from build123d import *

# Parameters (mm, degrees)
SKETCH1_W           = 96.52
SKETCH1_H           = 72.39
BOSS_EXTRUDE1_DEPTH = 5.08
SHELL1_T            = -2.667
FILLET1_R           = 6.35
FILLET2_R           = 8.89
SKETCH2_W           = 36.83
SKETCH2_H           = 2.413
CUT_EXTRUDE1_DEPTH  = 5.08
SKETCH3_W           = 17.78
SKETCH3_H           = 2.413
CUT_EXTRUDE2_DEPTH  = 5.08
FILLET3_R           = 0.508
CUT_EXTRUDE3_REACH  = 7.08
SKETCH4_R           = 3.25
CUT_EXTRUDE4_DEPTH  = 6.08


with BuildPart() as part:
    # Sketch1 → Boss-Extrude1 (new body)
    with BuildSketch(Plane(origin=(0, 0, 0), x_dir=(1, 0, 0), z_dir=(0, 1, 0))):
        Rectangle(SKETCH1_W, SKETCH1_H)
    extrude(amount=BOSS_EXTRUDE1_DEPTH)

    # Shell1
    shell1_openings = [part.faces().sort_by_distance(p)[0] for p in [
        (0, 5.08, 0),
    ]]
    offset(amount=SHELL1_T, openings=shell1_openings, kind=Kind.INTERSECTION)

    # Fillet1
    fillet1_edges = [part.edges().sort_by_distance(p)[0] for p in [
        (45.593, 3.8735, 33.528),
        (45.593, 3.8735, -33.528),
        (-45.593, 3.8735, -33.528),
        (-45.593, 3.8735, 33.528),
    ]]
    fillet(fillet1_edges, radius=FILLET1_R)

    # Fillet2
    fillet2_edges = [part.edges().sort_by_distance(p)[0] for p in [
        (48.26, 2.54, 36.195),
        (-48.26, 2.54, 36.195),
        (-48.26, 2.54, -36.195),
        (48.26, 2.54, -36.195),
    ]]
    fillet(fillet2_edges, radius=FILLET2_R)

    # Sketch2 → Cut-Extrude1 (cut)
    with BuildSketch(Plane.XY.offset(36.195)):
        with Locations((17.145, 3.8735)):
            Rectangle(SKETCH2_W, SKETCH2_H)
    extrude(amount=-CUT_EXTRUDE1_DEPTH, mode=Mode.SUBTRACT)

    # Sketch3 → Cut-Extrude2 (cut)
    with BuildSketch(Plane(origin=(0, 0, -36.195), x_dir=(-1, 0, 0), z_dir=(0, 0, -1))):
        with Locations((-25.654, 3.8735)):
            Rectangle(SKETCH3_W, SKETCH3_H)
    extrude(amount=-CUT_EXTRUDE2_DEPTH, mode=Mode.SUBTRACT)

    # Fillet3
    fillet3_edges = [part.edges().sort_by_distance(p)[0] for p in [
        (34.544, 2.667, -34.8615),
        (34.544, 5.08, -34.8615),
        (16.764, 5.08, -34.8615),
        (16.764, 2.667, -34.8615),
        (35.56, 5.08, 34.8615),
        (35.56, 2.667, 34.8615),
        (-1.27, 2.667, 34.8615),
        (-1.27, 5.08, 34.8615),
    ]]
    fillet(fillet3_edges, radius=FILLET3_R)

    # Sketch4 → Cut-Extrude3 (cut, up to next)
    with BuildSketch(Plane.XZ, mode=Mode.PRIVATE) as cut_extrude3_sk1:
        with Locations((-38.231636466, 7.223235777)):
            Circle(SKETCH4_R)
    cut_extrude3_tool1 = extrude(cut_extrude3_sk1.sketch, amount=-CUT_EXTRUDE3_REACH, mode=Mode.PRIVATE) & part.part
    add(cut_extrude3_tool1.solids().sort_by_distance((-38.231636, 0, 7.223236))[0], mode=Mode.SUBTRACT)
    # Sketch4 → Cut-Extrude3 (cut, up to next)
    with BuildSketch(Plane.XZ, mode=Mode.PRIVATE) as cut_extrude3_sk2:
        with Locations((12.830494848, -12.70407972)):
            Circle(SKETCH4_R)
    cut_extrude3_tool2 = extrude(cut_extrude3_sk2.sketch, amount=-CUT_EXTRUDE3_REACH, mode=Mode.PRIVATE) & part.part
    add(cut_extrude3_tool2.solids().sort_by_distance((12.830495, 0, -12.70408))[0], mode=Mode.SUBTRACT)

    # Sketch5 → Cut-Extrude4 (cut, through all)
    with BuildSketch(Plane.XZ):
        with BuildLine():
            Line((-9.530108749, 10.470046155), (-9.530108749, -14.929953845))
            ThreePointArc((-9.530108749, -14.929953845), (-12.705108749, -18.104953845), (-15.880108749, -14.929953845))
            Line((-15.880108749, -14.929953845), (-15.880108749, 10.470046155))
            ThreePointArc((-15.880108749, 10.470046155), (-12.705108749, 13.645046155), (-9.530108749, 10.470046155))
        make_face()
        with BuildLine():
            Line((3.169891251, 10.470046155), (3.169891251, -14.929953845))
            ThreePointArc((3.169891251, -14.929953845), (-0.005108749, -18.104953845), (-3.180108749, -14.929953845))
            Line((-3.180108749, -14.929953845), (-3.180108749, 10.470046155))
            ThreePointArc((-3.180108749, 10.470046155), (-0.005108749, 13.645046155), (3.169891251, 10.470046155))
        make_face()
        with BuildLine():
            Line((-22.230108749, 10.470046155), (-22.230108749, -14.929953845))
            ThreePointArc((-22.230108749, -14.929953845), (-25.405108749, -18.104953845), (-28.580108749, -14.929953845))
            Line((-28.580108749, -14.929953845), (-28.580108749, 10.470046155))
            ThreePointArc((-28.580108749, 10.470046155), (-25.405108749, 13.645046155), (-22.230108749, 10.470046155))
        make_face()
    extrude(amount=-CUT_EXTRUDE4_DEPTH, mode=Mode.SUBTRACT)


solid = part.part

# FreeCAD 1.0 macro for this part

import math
import FreeCAD as App
import Part
import Sketcher

V = App.Vector
Q = App.Units.Quantity


def edges_at(feature, points):
    """Names of the edges that pass closest to the given points."""
    edges = feature.Shape.Edges
    near = lambda p: min(range(len(edges)), key=lambda i: edges[i].distToShape(Part.Vertex(*p))[0])
    return sorted({f"Edge{near(p) + 1}" for p in points})


def faces_at(feature, points):
    """Names of the faces that lie closest to the given points."""
    faces = feature.Shape.Faces
    near = lambda p: min(range(len(faces)), key=lambda i: faces[i].distToShape(Part.Vertex(*p))[0])
    return sorted({f"Face{near(p) + 1}" for p in points})


def add_polygon(sketch, points):
    """Adds a closed chain of lines whose ends are joined by coincident constraints."""
    first, n = sketch.GeometryCount, len(points)
    for a, b in zip(points, points[1:] + points[:1]):
        sketch.addGeometry(Part.LineSegment(App.Vector(*a, 0), App.Vector(*b, 0)), False)
    for i in range(n):
        sketch.addConstraint(Sketcher.Constraint("Coincident", first + i, 2, first + (i + 1) % n, 1))

doc = App.newDocument("Part")
body = doc.addObject("PartDesign::Body", "Body")

# Sketch on XZ plane
sketch1 = doc.addObject("Sketcher::SketchObject", "Sketch")
body.addObject(sketch1)
sketch1.AttachmentSupport = (doc.XZ_Plane, [""])
sketch1.MapMode = "FlatFace"
add_polygon(sketch1, [(-48, -36), (-48, 36), (48, 36), (48, -36)])  # lines 0-3
sketch1.addConstraint(Sketcher.Constraint("Vertical", 0))
sketch1.addConstraint(Sketcher.Constraint("Horizontal", 1))
sketch1.addConstraint(Sketcher.Constraint("Vertical", 2))
sketch1.addConstraint(Sketcher.Constraint("Horizontal", 3))
sketch1.addConstraint(Sketcher.Constraint("Symmetric", 0, 2, 2, 2, -1, 1))
sketch1.addConstraint(Sketcher.Constraint("DistanceX", 1, 1, 1, 2, Q("3.8 in")))
sketch1.addConstraint(Sketcher.Constraint("DistanceY", 0, 1, 0, 2, Q("2.85 in")))
pad1 = doc.addObject("PartDesign::Pad", "Pad")
body.addObject(pad1)
pad1.Profile = sketch1
pad1.Length = Q("0.2 in")
pad1.Reversed = True
doc.recompute()

thickness = doc.addObject("PartDesign::Thickness", "Thickness")
body.addObject(thickness)
thickness.Base = (pad1, faces_at(pad1, [(0, 5.08, 0)]))
thickness.Value = Q("0.105 in")
thickness.Reversed = True
thickness.Join = "Intersection"
doc.recompute()

fillet = doc.addObject("PartDesign::Fillet", "Fillet")
body.addObject(fillet)
fillet.Base = (thickness, edges_at(thickness, [
    (45.593, 3.873, 33.528),
    (45.593, 3.873, -33.528),
    (-45.593, 3.873, -33.528),
    (-45.593, 3.873, 33.528),
]))
fillet.Radius = Q("0.25 in")
doc.recompute()

fillet2 = doc.addObject("PartDesign::Fillet", "Fillet001")
body.addObject(fillet2)
fillet2.Base = (fillet, edges_at(fillet, [
    (48.26, 2.54, 36.195),
    (-48.26, 2.54, 36.195),
    (-48.26, 2.54, -36.195),
    (48.26, 2.54, -36.195),
]))
fillet2.Radius = Q("0.35 in")

# Sketch on XY plane
sketch2 = doc.addObject("Sketcher::SketchObject", "Sketch001")
body.addObject(sketch2)
sketch2.AttachmentSupport = (doc.XY_Plane, [""])
sketch2.MapMode = "FlatFace"
sketch2.AttachmentOffset = App.Placement(V(0, 0, 1.425 * 25.4), App.Rotation())
add_polygon(sketch2, [(-1.3, 5.1), (-1.3, 2.7), (35.6, 2.7), (35.6, 5.1)])  # lines 0-3
sketch2.addConstraint(Sketcher.Constraint("Vertical", 0))
sketch2.addConstraint(Sketcher.Constraint("Horizontal", 1))
sketch2.addConstraint(Sketcher.Constraint("Vertical", 2))
sketch2.addConstraint(Sketcher.Constraint("Horizontal", 3))
sketch2.addConstraint(Sketcher.Constraint("DistanceX", 1, 1, 1, 2, Q("1.45 in")))
sketch2.addConstraint(Sketcher.Constraint("DistanceX", -1, 1, 1, 2, Q("1.4 in")))
sketch2.addConstraint(Sketcher.Constraint("DistanceY", -1, 1, 2, 2, Q("0.2 in")))
sketch2.addConstraint(Sketcher.Constraint("DistanceY", 0, 2, 0, 1, Q("0.095 in")))
pocket1 = doc.addObject("PartDesign::Pocket", "Pocket")
body.addObject(pocket1)
pocket1.Profile = sketch2
pocket1.Length = Q("0.2 in")

# Sketch on XY plane
sketch3 = doc.addObject("Sketcher::SketchObject", "Sketch002")
body.addObject(sketch3)
sketch3.AttachmentSupport = (doc.XY_Plane, [""])
sketch3.MapMode = "FlatFace"
sketch3.AttachmentOffset = App.Placement(V(0, 0, -1.425 * 25.4), App.Rotation())
add_polygon(sketch3, [(34.5, 5.1), (34.5, 2.7), (16.8, 2.7), (16.8, 5.1)])  # lines 0-3
sketch3.addConstraint(Sketcher.Constraint("Vertical", 0))
sketch3.addConstraint(Sketcher.Constraint("Horizontal", 1))
sketch3.addConstraint(Sketcher.Constraint("Vertical", 2))
sketch3.addConstraint(Sketcher.Constraint("Horizontal", 3))
sketch3.addConstraint(Sketcher.Constraint("DistanceX", 1, 2, 1, 1, Q("0.7 in")))
sketch3.addConstraint(Sketcher.Constraint("DistanceY", -1, 1, 2, 2, Q("0.2 in")))
sketch3.addConstraint(Sketcher.Constraint("DistanceY", 0, 2, 0, 1, Q("0.095 in")))
sketch3.addConstraint(Sketcher.Constraint("DistanceX", -1, 1, 0, 2, Q("1.36 in")))
pocket2 = doc.addObject("PartDesign::Pocket", "Pocket001")
body.addObject(pocket2)
pocket2.Profile = sketch3
pocket2.Length = Q("0.2 in")
pocket2.Reversed = True
doc.recompute()

fillet3 = doc.addObject("PartDesign::Fillet", "Fillet002")
body.addObject(fillet3)
fillet3.Base = (pocket2, edges_at(pocket2, [
    (34.544, 2.667, -34.861),
    (34.544, 5.08, -34.861),
    (16.764, 5.08, -34.861),
    (16.764, 2.667, -34.861),
    (35.56, 5.08, 34.861),
    (35.56, 2.667, 34.861),
    (-1.27, 2.667, 34.861),
    (-1.27, 5.08, 34.861),
]))
fillet3.Radius = Q("0.02 in")

# Sketch on XZ plane
sketch4 = doc.addObject("Sketcher::SketchObject", "Sketch003")
body.addObject(sketch4)
sketch4.AttachmentSupport = (doc.XZ_Plane, [""])
sketch4.MapMode = "FlatFace"
sketch4.addGeometry(Part.Circle(V(-38.2, 7.2, 0), V(0, 0, 1), 3.2), False)
sketch4.addConstraint(Sketcher.Constraint("Diameter", 0, 6.5))
sketch4.addConstraint(Sketcher.Constraint("DistanceX", 0, 3, -1, 1, 38.231636))
sketch4.addConstraint(Sketcher.Constraint("DistanceY", -1, 1, 0, 3, 7.223236))
pocket3 = doc.addObject("PartDesign::Pocket", "Pocket002")
body.addObject(pocket3)
pocket3.Profile = sketch4
pocket3.Type = "UpToFirst"

# Sketch on XZ plane
sketch5 = doc.addObject("Sketcher::SketchObject", "Sketch004")
body.addObject(sketch5)
sketch5.AttachmentSupport = (doc.XZ_Plane, [""])
sketch5.MapMode = "FlatFace"
sketch5.addGeometry(Part.Circle(V(12.8, -12.7, 0), V(0, 0, 1), 3.2), False)
sketch5.addConstraint(Sketcher.Constraint("Diameter", 0, 6.5))
sketch5.addConstraint(Sketcher.Constraint("DistanceY", 0, 3, -1, 1, 12.70408))
sketch5.addConstraint(Sketcher.Constraint("DistanceX", -1, 1, 0, 3, 12.830495))
pocket4 = doc.addObject("PartDesign::Pocket", "Pocket003")
body.addObject(pocket4)
pocket4.Profile = sketch5
pocket4.Type = "UpToFirst"

# Sketch on XZ plane
sketch6 = doc.addObject("Sketcher::SketchObject", "Sketch005")
body.addObject(sketch6)
sketch6.AttachmentSupport = (doc.XZ_Plane, [""])
sketch6.MapMode = "FlatFace"
sketch6.addGeometry(Part.LineSegment(V(-9.5, -14.9, 0), V(-9.5, 10.5, 0)), False)
sketch6.addGeometry(Part.ArcOfCircle(Part.Circle(V(-12.7, 10.5, 0), V(0, 0, 1), 3.2), math.radians(0), math.radians(180)), False)
sketch6.addGeometry(Part.LineSegment(V(-15.9, 10.5, 0), V(-15.9, -14.9, 0)), False)
sketch6.addGeometry(Part.ArcOfCircle(Part.Circle(V(-12.7, -14.9, 0), V(0, 0, 1), 3.2), math.radians(180), math.radians(360)), False)
sketch6.addGeometry(Part.LineSegment(V(3.2, -14.9, 0), V(3.2, 10.5, 0)), False)
sketch6.addGeometry(Part.ArcOfCircle(Part.Circle(V(0, 10.5, 0), V(0, 0, 1), 3.2), math.radians(0), math.radians(180)), False)
sketch6.addGeometry(Part.LineSegment(V(-3.2, 10.5, 0), V(-3.2, -14.9, 0)), False)
sketch6.addGeometry(Part.ArcOfCircle(Part.Circle(V(0, -14.9, 0), V(0, 0, 1), 3.2), math.radians(180), math.radians(360)), False)
sketch6.addGeometry(Part.LineSegment(V(-22.2, -14.9, 0), V(-22.2, 10.5, 0)), False)
sketch6.addGeometry(Part.ArcOfCircle(Part.Circle(V(-25.4, 10.5, 0), V(0, 0, 1), 3.2), math.radians(0), math.radians(180)), False)
sketch6.addGeometry(Part.LineSegment(V(-28.6, 10.5, 0), V(-28.6, -14.9, 0)), False)
sketch6.addGeometry(Part.ArcOfCircle(Part.Circle(V(-25.4, -14.9, 0), V(0, 0, 1), 3.2), math.radians(180), math.radians(360)), False)
sketch6.addConstraint(Sketcher.Constraint("Tangent", 0, 2, 1, 1))
sketch6.addConstraint(Sketcher.Constraint("Tangent", 1, 2, 2, 1))
sketch6.addConstraint(Sketcher.Constraint("Tangent", 2, 2, 3, 1))
sketch6.addConstraint(Sketcher.Constraint("Tangent", 3, 2, 0, 1))
sketch6.addConstraint(Sketcher.Constraint("Tangent", 4, 2, 5, 1))
sketch6.addConstraint(Sketcher.Constraint("Tangent", 5, 2, 6, 1))
sketch6.addConstraint(Sketcher.Constraint("Tangent", 6, 2, 7, 1))
sketch6.addConstraint(Sketcher.Constraint("Tangent", 7, 2, 4, 1))
sketch6.addConstraint(Sketcher.Constraint("Tangent", 8, 2, 9, 1))
sketch6.addConstraint(Sketcher.Constraint("Tangent", 9, 2, 10, 1))
sketch6.addConstraint(Sketcher.Constraint("Tangent", 10, 2, 11, 1))
sketch6.addConstraint(Sketcher.Constraint("Tangent", 11, 2, 8, 1))
sketch6.addConstraint(Sketcher.Constraint("Vertical", 0))
sketch6.addConstraint(Sketcher.Constraint("Vertical", 2))
sketch6.addConstraint(Sketcher.Constraint("Vertical", 4))
sketch6.addConstraint(Sketcher.Constraint("Vertical", 6))
sketch6.addConstraint(Sketcher.Constraint("Vertical", 8))
sketch6.addConstraint(Sketcher.Constraint("Vertical", 10))
sketch6.addConstraint(Sketcher.Constraint("Equal", 3, 5))
sketch6.addConstraint(Sketcher.Constraint("Equal", 7, 9))
sketch6.addConstraint(Sketcher.Constraint("Horizontal", 1, 3, 5, 3))
sketch6.addConstraint(Sketcher.Constraint("Horizontal", 3, 3, 7, 3))
sketch6.addConstraint(Sketcher.Constraint("Horizontal", 5, 3, 9, 3))
sketch6.addConstraint(Sketcher.Constraint("Horizontal", 7, 3, 11, 3))
sketch6.addConstraint(Sketcher.Constraint("DistanceY", 0, 1, 0, 2, Q("1 in")))
sketch6.addConstraint(Sketcher.Constraint("Radius", 1, Q("0.125 in")))
sketch6.addConstraint(Sketcher.Constraint("DistanceX", 9, 3, 5, 3, Q("1 in")))
sketch6.addConstraint(Sketcher.Constraint("DistanceX", 1, 3, 5, 3, Q("0.5 in")))
sketch6.addConstraint(Sketcher.Constraint("DistanceX", 1, 3, -1, 1, 12.705109))
sketch6.addConstraint(Sketcher.Constraint("DistanceY", -1, 1, 1, 3, 10.470046))
pocket5 = doc.addObject("PartDesign::Pocket", "Pocket004")
body.addObject(pocket5)
pocket5.Profile = sketch6
pocket5.Type = "ThroughAll"

doc.recompute()
